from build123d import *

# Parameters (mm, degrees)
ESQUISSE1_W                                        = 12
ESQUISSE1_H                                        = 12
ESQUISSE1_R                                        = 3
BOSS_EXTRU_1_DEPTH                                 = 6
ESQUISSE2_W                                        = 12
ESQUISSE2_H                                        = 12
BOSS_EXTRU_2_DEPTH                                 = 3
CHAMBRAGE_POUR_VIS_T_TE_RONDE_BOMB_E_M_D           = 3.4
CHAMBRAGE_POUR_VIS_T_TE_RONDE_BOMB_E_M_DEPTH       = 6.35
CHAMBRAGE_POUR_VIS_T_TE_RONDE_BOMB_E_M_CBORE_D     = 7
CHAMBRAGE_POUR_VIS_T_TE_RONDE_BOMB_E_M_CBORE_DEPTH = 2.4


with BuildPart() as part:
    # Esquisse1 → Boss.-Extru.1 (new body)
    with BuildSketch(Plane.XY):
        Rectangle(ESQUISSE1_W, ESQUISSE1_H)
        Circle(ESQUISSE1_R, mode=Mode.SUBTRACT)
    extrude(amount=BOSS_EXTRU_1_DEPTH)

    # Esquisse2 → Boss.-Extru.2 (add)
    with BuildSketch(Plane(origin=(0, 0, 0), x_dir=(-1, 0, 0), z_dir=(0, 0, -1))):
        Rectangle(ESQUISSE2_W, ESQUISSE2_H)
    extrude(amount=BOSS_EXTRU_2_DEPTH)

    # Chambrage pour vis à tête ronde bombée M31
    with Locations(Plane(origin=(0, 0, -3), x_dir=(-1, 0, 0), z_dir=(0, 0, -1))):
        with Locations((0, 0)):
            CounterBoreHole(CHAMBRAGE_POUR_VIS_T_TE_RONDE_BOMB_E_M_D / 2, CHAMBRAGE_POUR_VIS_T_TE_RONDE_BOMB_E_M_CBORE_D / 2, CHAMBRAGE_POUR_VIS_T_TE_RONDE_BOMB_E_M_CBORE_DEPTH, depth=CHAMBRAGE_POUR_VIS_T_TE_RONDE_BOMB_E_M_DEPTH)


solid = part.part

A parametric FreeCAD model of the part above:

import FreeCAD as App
import Part
import Sketcher

doc = App.newDocument("Part")
body = doc.addObject("PartDesign::Body", "Body")

sketch1 = body.newObject("Sketcher::SketchObject", "Sketch")
sketch1.AttachmentSupport = (doc.getObject("XY_Plane"), [""])
sketch1.MapMode = "FlatFace"
sketch1.addGeometry(Part.LineSegment(App.Vector(-6, 6, 0), App.Vector(-6, -6, 0)), False)
sketch1.addGeometry(Part.LineSegment(App.Vector(-6, -6, 0), App.Vector(6, -6, 0)), False)
sketch1.addGeometry(Part.LineSegment(App.Vector(6, -6, 0), App.Vector(6, 6, 0)), False)
sketch1.addGeometry(Part.LineSegment(App.Vector(6, 6, 0), App.Vector(-6, 6, 0)), False)
sketch1.addGeometry(Part.Circle(App.Vector(0, 0, 0), App.Vector(0, 0, 1), 3), False)
sketch1.addConstraint(Sketcher.Constraint("Coincident", 0, 2, 1, 1))
sketch1.addConstraint(Sketcher.Constraint("Coincident", 1, 2, 2, 1))
sketch1.addConstraint(Sketcher.Constraint("Coincident", 2, 2, 3, 1))
sketch1.addConstraint(Sketcher.Constraint("Coincident", 3, 2, 0, 1))
sketch1.addConstraint(Sketcher.Constraint("Vertical", 0))
sketch1.addConstraint(Sketcher.Constraint("Horizontal", 1))
sketch1.addConstraint(Sketcher.Constraint("Vertical", 2))
sketch1.addConstraint(Sketcher.Constraint("Horizontal", 3))
sketch1.addConstraint(Sketcher.Constraint("Coincident", 4, 3, -1, 1))
sketch1.addConstraint(Sketcher.Constraint("Symmetric", 0, 2, 2, 2, -1, 1))
sketch1.addConstraint(Sketcher.Constraint("Equal", 3, 0))
sketch1.addConstraint(Sketcher.Constraint("Diameter", 4, 6.0))
sketch1.addConstraint(Sketcher.Constraint("DistanceX", 1, 1, 1, 2, 12.0))
pad1 = body.newObject("PartDesign::Pad", "Pad")
pad1.Profile = sketch1
pad1.Length = 6

sketch2 = body.newObject("Sketcher::SketchObject", "Sketch001")
sketch2.AttachmentSupport = (doc.getObject("XY_Plane"), [""])
sketch2.MapMode = "FlatFace"
sketch2.addGeometry(Part.LineSegment(App.Vector(6, 6, 0), App.Vector(6, -6, 0)), False)
sketch2.addGeometry(Part.LineSegment(App.Vector(6, -6, 0), App.Vector(-6, -6, 0)), False)
sketch2.addGeometry(Part.LineSegment(App.Vector(-6, -6, 0), App.Vector(-6, 6, 0)), False)
sketch2.addGeometry(Part.LineSegment(App.Vector(-6, 6, 0), App.Vector(6, 6, 0)), False)
sketch2.addConstraint(Sketcher.Constraint("Coincident", 0, 2, 1, 1))
sketch2.addConstraint(Sketcher.Constraint("Coincident", 1, 2, 2, 1))
sketch2.addConstraint(Sketcher.Constraint("Coincident", 2, 2, 3, 1))
sketch2.addConstraint(Sketcher.Constraint("Coincident", 3, 2, 0, 1))
sketch2.addConstraint(Sketcher.Constraint("Vertical", 0))
sketch2.addConstraint(Sketcher.Constraint("Horizontal", 1))
sketch2.addConstraint(Sketcher.Constraint("Vertical", 2))
sketch2.addConstraint(Sketcher.Constraint("Horizontal", 3))
sketch2.addConstraint(Sketcher.Constraint("Symmetric", 0, 2, 2, 2, -1, 1))
sketch2.addConstraint(Sketcher.Constraint("Equal", 3, 0))
sketch2.addConstraint(Sketcher.Constraint("DistanceX", 1, 2, 1, 1, 12.0))
pad2 = body.newObject("PartDesign::Pad", "Pad001")
pad2.Profile = sketch2
pad2.Length = 3
pad2.Reversed = True

sketch3 = body.newObject("Sketcher::SketchObject", "Sketch002")
sketch3.AttachmentSupport = (doc.getObject("XY_Plane"), [""])
sketch3.MapMode = "FlatFace"
sketch3.AttachmentOffset = App.Placement(App.Vector(0, 0, -3), App.Rotation())
sketch3.addGeometry(Part.Circle(App.Vector(0, 0, 0), App.Vector(0, 0, 1), 1.7), False)
sketch3.addConstraint(Sketcher.Constraint("Coincident", 0, 3, -1, 1))
sketch3.addConstraint(Sketcher.Constraint("Diameter", 0, 3.4))
doc.recompute()
hole = body.newObject("PartDesign::Hole", "Hole")
hole.Profile = sketch3
hole.ThreadType = "None"
hole.Diameter = 3.4
hole.DepthType = "Dimension"
hole.Depth = 6.35
hole.DrillPoint = "Flat"
hole.HoleCutType = "Counterbore"
hole.HoleCutDiameter = 7
hole.HoleCutDepth = 2.4
hole.Reversed = True

doc.recompute()
